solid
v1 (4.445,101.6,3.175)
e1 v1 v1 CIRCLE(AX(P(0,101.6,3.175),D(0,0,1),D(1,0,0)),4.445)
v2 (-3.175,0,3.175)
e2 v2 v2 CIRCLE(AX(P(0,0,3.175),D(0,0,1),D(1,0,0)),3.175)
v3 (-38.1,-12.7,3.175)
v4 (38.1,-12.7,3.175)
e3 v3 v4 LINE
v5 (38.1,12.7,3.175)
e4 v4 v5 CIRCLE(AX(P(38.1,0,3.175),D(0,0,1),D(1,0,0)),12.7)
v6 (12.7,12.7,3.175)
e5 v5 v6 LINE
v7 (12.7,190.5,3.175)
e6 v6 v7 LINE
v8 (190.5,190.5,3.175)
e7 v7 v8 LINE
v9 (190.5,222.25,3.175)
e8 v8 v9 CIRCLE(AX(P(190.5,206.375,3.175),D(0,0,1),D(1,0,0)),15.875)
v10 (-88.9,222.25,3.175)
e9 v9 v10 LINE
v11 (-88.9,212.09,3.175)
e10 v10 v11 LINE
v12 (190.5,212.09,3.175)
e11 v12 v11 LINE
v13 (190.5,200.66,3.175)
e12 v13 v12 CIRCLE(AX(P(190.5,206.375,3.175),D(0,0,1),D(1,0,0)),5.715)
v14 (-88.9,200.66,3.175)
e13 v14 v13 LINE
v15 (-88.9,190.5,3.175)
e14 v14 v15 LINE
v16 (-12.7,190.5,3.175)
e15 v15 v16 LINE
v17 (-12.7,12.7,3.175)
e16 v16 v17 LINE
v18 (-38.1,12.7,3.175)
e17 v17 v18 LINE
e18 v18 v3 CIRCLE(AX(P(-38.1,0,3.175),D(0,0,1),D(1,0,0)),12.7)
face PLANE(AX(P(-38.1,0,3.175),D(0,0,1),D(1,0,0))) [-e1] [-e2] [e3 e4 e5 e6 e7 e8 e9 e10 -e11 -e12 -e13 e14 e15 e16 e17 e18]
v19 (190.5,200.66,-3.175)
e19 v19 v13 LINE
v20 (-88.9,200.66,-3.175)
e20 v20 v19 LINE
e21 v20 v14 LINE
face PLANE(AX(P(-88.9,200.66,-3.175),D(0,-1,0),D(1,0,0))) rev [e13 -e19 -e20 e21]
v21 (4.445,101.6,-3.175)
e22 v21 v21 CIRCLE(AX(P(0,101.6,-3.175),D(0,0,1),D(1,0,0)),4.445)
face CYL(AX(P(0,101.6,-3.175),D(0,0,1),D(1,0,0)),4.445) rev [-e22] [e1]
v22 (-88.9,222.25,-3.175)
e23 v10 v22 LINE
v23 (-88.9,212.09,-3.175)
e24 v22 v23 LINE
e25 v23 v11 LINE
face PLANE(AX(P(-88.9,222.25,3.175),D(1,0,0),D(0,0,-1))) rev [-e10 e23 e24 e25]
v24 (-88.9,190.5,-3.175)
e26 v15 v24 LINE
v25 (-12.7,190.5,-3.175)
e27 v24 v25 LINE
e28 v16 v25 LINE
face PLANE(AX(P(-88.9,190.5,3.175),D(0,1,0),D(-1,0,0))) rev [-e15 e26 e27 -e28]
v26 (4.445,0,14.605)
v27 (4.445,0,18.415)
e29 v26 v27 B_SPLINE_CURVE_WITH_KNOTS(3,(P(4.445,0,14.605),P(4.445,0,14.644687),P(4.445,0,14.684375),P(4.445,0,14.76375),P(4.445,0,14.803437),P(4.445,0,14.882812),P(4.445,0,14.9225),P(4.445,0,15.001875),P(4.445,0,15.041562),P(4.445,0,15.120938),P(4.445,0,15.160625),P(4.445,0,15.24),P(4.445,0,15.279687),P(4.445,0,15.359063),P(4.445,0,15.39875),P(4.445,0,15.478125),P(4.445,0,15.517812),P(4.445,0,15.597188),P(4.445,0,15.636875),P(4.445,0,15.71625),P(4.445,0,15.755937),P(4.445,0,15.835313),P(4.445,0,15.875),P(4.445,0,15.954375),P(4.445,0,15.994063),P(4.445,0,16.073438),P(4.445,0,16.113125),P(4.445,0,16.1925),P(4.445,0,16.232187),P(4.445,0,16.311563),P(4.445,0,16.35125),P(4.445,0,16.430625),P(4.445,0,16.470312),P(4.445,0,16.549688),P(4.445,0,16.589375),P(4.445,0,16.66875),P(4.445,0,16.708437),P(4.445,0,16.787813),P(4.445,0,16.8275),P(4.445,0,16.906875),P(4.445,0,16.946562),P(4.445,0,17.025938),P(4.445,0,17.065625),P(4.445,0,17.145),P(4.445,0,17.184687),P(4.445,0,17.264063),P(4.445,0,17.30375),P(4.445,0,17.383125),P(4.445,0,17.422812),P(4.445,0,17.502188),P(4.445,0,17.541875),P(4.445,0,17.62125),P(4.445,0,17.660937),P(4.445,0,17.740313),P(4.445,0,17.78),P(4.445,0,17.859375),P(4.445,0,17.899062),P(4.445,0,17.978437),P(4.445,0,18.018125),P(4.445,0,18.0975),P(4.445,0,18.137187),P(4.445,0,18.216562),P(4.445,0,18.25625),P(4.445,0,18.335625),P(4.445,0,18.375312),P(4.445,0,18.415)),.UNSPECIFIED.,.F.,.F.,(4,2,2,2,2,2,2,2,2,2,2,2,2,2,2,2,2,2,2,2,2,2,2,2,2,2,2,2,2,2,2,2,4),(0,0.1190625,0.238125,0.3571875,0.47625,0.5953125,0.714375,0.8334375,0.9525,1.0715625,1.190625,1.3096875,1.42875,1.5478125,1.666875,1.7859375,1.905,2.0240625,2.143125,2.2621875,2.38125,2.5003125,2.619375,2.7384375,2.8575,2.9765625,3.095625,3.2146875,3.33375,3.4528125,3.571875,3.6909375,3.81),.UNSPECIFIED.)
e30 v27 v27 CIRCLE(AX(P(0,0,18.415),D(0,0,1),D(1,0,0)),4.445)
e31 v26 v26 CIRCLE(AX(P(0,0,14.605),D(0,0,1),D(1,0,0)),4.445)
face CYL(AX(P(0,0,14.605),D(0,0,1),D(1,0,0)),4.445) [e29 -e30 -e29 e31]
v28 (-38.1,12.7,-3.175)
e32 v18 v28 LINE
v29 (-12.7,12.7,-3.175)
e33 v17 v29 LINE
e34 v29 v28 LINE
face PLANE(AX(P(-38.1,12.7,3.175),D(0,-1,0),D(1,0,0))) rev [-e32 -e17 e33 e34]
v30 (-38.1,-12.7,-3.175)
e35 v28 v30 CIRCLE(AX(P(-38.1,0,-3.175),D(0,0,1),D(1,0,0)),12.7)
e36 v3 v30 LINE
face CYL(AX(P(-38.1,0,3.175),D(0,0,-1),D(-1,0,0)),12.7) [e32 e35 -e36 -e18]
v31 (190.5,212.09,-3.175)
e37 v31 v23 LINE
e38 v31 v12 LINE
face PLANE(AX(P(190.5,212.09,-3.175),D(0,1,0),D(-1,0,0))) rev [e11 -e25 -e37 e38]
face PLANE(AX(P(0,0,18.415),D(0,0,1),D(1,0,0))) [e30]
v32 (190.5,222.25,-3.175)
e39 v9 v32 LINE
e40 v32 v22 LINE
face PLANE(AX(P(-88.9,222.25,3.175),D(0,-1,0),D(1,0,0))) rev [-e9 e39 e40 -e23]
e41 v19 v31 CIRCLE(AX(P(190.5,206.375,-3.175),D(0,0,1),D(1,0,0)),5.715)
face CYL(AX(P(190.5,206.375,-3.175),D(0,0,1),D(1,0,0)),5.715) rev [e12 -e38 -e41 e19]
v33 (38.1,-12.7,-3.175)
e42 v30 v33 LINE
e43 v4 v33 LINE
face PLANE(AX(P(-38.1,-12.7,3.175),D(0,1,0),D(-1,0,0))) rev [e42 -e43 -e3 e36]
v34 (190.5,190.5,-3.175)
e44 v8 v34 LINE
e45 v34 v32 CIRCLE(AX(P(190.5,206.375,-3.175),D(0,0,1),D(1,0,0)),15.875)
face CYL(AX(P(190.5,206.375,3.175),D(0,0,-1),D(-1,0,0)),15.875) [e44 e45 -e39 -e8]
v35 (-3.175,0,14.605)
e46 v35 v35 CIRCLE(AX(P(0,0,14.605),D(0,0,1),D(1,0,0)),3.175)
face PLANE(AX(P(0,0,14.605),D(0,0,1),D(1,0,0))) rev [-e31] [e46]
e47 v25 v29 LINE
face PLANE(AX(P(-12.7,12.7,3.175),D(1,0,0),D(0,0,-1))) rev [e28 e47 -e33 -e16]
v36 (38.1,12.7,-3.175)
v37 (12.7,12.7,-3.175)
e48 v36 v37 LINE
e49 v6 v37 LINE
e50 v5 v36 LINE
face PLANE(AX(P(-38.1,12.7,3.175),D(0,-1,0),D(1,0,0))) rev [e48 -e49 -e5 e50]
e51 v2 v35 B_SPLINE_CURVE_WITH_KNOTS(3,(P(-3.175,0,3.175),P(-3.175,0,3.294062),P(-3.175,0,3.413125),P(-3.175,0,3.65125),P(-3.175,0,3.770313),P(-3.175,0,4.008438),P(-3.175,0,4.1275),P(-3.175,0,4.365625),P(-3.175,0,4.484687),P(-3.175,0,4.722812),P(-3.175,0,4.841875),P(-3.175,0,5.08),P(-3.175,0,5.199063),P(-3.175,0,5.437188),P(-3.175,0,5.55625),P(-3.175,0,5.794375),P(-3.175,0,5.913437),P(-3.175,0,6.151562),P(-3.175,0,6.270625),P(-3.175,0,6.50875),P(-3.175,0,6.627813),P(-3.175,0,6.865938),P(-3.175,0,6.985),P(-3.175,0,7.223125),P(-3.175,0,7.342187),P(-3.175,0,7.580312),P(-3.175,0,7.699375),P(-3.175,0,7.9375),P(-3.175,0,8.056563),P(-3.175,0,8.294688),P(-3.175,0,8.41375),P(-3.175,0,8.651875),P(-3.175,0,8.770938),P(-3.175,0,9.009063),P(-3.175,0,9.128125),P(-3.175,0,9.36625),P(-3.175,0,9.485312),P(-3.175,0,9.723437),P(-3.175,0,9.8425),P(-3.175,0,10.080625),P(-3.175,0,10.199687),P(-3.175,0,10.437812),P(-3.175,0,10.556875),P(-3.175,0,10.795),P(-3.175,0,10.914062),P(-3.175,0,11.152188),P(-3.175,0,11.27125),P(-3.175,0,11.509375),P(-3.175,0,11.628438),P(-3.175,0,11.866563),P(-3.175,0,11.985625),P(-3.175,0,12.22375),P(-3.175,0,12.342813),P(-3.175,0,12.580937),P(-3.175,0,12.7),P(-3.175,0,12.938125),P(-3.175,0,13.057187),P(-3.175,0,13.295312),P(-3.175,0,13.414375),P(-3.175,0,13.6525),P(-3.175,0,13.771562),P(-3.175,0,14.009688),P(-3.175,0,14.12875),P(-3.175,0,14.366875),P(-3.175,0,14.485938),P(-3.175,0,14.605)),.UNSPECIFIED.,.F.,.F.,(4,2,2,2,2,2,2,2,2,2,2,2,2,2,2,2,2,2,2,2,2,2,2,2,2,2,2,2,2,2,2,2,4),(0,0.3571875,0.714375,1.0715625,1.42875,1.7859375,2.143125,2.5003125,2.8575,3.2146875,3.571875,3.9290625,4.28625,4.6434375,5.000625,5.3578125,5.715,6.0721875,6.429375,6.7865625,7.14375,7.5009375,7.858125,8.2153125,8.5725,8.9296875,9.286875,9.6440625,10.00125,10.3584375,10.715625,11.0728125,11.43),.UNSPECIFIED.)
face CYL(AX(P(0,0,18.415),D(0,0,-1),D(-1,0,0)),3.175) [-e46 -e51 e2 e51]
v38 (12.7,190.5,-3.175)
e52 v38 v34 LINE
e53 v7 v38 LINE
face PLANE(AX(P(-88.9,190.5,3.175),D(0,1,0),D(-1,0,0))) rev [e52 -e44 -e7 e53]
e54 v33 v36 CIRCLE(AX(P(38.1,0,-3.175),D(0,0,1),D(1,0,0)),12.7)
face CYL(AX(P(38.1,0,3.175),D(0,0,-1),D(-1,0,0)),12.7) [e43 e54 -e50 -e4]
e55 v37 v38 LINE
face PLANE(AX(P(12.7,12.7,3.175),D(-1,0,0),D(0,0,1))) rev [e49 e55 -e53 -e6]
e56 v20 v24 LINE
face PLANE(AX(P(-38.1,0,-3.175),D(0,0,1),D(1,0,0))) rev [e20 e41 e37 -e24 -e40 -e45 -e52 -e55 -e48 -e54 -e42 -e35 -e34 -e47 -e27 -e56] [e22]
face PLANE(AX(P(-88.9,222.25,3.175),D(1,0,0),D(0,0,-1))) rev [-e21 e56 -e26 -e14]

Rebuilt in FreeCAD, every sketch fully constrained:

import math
import FreeCAD as App
import Part
import Sketcher
from FreeCAD import Vector
Q = App.Units.Quantity

doc = App.newDocument("Part")
body = doc.addObject("PartDesign::Body", "Body")

sketch1 = body.newObject("Sketcher::SketchObject", "Sketch")
sketch1.AttachmentSupport = (doc.getObject("XY_Plane"), [""])
sketch1.MapMode = "FlatFace"
sketch1.addGeometry([
    Part.LineSegment(Vector(38, 13, 0), Vector(-38, 13, 0)),
    Part.ArcOfCircle(Part.Circle(Vector(-38, 0, 0), Vector(0, 0, 1), 13), math.radians(90), math.radians(270)),
    Part.LineSegment(Vector(-38, -13, 0), Vector(38, -13, 0)),
    Part.ArcOfCircle(Part.Circle(Vector(38, 0, 0), Vector(0, 0, 1), 13), math.radians(-90), math.radians(90)),
], False)
sketch1.addConstraint([
    Sketcher.Constraint("Tangent", 0, 2, 1, 1),
    Sketcher.Constraint("Tangent", 1, 2, 2, 1),
    Sketcher.Constraint("Tangent", 2, 2, 3, 1),
    Sketcher.Constraint("Tangent", 3, 2, 0, 1),
    Sketcher.Constraint("Horizontal", 0),
    Sketcher.Constraint("Horizontal", 2),
    Sketcher.Constraint("Symmetric", 1, 3, 3, 3, -1, 1),
    Sketcher.Constraint("Radius", 1, Q("0.5 in")),
    Sketcher.Constraint("DistanceX", 0, 2, 0, 1, Q("3 in")),
])
pad1 = body.newObject("PartDesign::Pad", "Pad")
pad1.Profile = sketch1
pad1.Length = Q("0.25 in")
pad1.Midplane = True

sketch2 = body.newObject("Sketcher::SketchObject", "Sketch001")
sketch2.AttachmentSupport = (doc.getObject("XY_Plane"), [""])
sketch2.MapMode = "FlatFace"
sketch2.addGeometry([
    Part.LineSegment(Vector(-13, 190, 0), Vector(-13, 13, 0)),
    Part.LineSegment(Vector(-13, 13, 0), Vector(13, 13, 0)),
    Part.LineSegment(Vector(13, 13, 0), Vector(13, 190, 0)),
    Part.LineSegment(Vector(13, 190, 0), Vector(-13, 190, 0)),
], False)
sketch2.addConstraint([
    Sketcher.Constraint("Coincident", 0, 2, 1, 1),
    Sketcher.Constraint("Coincident", 1, 2, 2, 1),
    Sketcher.Constraint("Coincident", 2, 2, 3, 1),
    Sketcher.Constraint("Coincident", 3, 2, 0, 1),
    Sketcher.Constraint("Vertical", 0),
    Sketcher.Constraint("Horizontal", 1),
    Sketcher.Constraint("Vertical", 2),
    Sketcher.Constraint("Horizontal", 3),
    Sketcher.Constraint("DistanceX", 1, 1, 1, 2, Q("1 in")),
    Sketcher.Constraint("DistanceY", 0, 2, 0, 1, Q("7 in")),
    Sketcher.Constraint("DistanceX", 0, 2, -1, 1, Q("0.5 in")),
    Sketcher.Constraint("DistanceY", -1, 1, 0, 2, Q("0.5 in")),
])
pad2 = body.newObject("PartDesign::Pad", "Pad001")
pad2.Profile = sketch2
pad2.Length = Q("0.25 in")
pad2.Midplane = True

sketch3 = body.newObject("Sketcher::SketchObject", "Sketch002")
sketch3.AttachmentSupport = (doc.getObject("XY_Plane"), [""])
sketch3.MapMode = "FlatFace"
sketch3.addGeometry([
    Part.LineSegment(Vector(190, 222, 0), Vector(-89, 222, 0)),
    Part.LineSegment(Vector(-89, 222, 0), Vector(-89, 190, 0)),
    Part.LineSegment(Vector(-89, 190, 0), Vector(190, 190, 0)),
    Part.ArcOfCircle(Part.Circle(Vector(190, 206, 0), Vector(0, 0, 1), 16), math.radians(-90), math.radians(90)),
], False)
sketch3.addConstraint([
    Sketcher.Constraint("Coincident", 0, 2, 1, 1),
    Sketcher.Constraint("Coincident", 1, 2, 2, 1),
    Sketcher.Constraint("Tangent", 2, 2, 3, 1),
    Sketcher.Constraint("Tangent", 3, 2, 0, 1),
    Sketcher.Constraint("Horizontal", 0),
    Sketcher.Constraint("Vertical", 1),
    Sketcher.Constraint("Horizontal", 2),
    Sketcher.Constraint("DistanceX", 0, 2, 0, 1, Q("11 in")),
    Sketcher.Constraint("Radius", 3, Q("0.625 in")),
    Sketcher.Constraint("DistanceX", -1, 1, 3, 3, Q("7.5 in")),
    Sketcher.Constraint("DistanceY", -1, 1, 1, 2, Q("7.5 in")),
])
pad3 = body.newObject("PartDesign::Pad", "Pad002")
pad3.Profile = sketch3
pad3.Length = Q("0.25 in")
pad3.Midplane = True

sketch4 = body.newObject("Sketcher::SketchObject", "Sketch003")
sketch4.AttachmentSupport = (doc.getObject("XY_Plane"), [""])
sketch4.MapMode = "FlatFace"
sketch4.AttachmentOffset = App.Placement(Vector(0, 0, 0.125 * 25.4), App.Rotation())
sketch4.addGeometry([
    Part.LineSegment(Vector(-89, 212, 0), Vector(-89, 201, 0)),
    Part.LineSegment(Vector(-89, 201, 0), Vector(190, 201, 0)),
    Part.ArcOfCircle(Part.Circle(Vector(190, 206, 0), Vector(0, 0, 1), 6), math.radians(-90), math.radians(90)),
    Part.LineSegment(Vector(190, 212, 0), Vector(-89, 212, 0)),
], False)
sketch4.addConstraint([
    Sketcher.Constraint("Coincident", 0, 2, 1, 1),
    Sketcher.Constraint("Tangent", 1, 2, 2, 1),
    Sketcher.Constraint("Tangent", 2, 2, 3, 1),
    Sketcher.Constraint("Coincident", 3, 2, 0, 1),
    Sketcher.Constraint("Vertical", 0),
    Sketcher.Constraint("Horizontal", 1),
    Sketcher.Constraint("Horizontal", 3),
    Sketcher.Constraint("DistanceX", 1, 1, 1, 2, Q("11 in")),
    Sketcher.Constraint("Radius", 2, Q("0.225 in")),
    Sketcher.Constraint("DistanceX", -1, 1, 2, 3, Q("7.5 in")),
    Sketcher.Constraint("DistanceY", -1, 1, 0, 2, Q("7.9 in")),
])
pocket1 = body.newObject("PartDesign::Pocket", "Pocket")
pocket1.Profile = sketch4
pocket1.Type = "ThroughAll"

sketch5 = body.newObject("Sketcher::SketchObject", "Sketch004")
sketch5.AttachmentSupport = (doc.getObject("XY_Plane"), [""])
sketch5.MapMode = "FlatFace"
sketch5.AttachmentOffset = App.Placement(Vector(0, 0, 0.125 * 25.4), App.Rotation())
sketch5.addGeometry(Part.Circle(Vector(0, 101.6, 0), Vector(0, 0, 1), 4.4), False)
sketch5.addConstraint([
    Sketcher.Constraint("PointOnObject", 0, 3, -2),
    Sketcher.Constraint("Diameter", 0, Q("0.35 in")),
    Sketcher.Constraint("DistanceY", -1, 1, 0, 3, Q("4 in")),
])
pocket2 = body.newObject("PartDesign::Pocket", "Pocket001")
pocket2.Profile = sketch5
pocket2.Type = "ThroughAll"

sketch6 = body.newObject("Sketcher::SketchObject", "Sketch005")
sketch6.AttachmentSupport = (doc.getObject("XY_Plane"), [""])
sketch6.MapMode = "FlatFace"
sketch6.AttachmentOffset = App.Placement(Vector(0, 0, 0.125 * 25.4), App.Rotation())
sketch6.addGeometry(Part.Circle(Vector(0, 0, 0), Vector(0, 0, 1), 3.2), False)
sketch6.addConstraint([
    Sketcher.Constraint("Coincident", 0, 3, -1, 1),
    Sketcher.Constraint("Diameter", 0, Q("0.25 in")),
])
pad4 = body.newObject("PartDesign::Pad", "Pad003")
pad4.Profile = sketch6
pad4.Length = Q("0.6 in")

sketch7 = body.newObject("Sketcher::SketchObject", "Sketch006")
sketch7.AttachmentSupport = (doc.getObject("XY_Plane"), [""])
sketch7.MapMode = "FlatFace"
sketch7.AttachmentOffset = App.Placement(Vector(0, 0, 0.725 * 25.4), App.Rotation())
sketch7.addGeometry(Part.Circle(Vector(0, 0, 0), Vector(0, 0, 1), 4.4), False)
sketch7.addConstraint([
    Sketcher.Constraint("Coincident", 0, 3, -1, 1),
    Sketcher.Constraint("Diameter", 0, Q("0.35 in")),
])
pad5 = body.newObject("PartDesign::Pad", "Pad004")
pad5.Profile = sketch7
pad5.Length = Q("0.15 in")
pad5.Reversed = True

doc.recompute()
